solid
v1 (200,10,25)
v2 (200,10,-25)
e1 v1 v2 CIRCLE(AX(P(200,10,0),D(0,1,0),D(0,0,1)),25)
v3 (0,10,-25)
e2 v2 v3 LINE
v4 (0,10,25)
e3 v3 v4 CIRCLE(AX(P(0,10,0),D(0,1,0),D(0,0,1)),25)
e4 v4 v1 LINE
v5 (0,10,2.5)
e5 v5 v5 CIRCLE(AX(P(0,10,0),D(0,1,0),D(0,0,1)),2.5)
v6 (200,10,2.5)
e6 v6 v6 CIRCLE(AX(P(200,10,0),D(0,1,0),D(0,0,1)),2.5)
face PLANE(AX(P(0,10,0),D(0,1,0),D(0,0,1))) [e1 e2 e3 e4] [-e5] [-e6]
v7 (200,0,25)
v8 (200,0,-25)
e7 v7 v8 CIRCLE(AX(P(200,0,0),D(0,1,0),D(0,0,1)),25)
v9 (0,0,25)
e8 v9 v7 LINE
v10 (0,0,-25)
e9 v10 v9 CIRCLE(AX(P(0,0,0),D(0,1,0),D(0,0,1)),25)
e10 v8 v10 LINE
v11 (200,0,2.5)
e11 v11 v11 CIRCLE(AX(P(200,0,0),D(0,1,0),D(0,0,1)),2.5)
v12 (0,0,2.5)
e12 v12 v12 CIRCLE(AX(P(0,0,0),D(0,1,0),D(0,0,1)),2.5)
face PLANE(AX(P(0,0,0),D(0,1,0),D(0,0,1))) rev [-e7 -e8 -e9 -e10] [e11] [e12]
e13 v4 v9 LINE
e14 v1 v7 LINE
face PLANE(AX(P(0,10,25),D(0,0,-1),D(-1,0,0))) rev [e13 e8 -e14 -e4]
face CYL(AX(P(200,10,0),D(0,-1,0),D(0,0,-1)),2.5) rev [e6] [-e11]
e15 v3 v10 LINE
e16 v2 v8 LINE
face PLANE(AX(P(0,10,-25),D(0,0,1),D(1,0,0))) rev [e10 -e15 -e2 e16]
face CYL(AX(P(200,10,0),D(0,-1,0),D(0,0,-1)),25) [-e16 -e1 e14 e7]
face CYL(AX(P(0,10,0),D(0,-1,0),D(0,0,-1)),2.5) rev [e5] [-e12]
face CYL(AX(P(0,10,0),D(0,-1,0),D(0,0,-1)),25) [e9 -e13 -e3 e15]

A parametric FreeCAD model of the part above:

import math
import FreeCAD as App
import Part
import Sketcher
from FreeCAD import Vector

doc = App.newDocument("Part")
body = doc.addObject("PartDesign::Body", "Body")

sketch1 = body.newObject("Sketcher::SketchObject", "Sketch")
sketch1.AttachmentSupport = (doc.getObject("XZ_Plane"), [""])
sketch1.MapMode = "FlatFace"
sketch1.addGeometry(Part.LineSegment(Vector(200, -25, 0), Vector(0, -25, 0)), False)
sketch1.addGeometry(Part.ArcOfCircle(Part.Circle(Vector(0, 0, 0), Vector(0, 0, 1), 25), math.radians(90), math.radians(270)), False)
sketch1.addGeometry(Part.LineSegment(Vector(0, 25, 0), Vector(200, 25, 0)), False)
sketch1.addGeometry(Part.ArcOfCircle(Part.Circle(Vector(200, 0, 0), Vector(0, 0, 1), 25), math.radians(-90), math.radians(90)), False)
sketch1.addGeometry(Part.Circle(Vector(200, 0, 0), Vector(0, 0, 1), 2.5), False)
sketch1.addGeometry(Part.Circle(Vector(0, 0, 0), Vector(0, 0, 1), 2.5), False)
sketch1.addConstraint(Sketcher.Constraint("Tangent", 0, 2, 1, 2))
sketch1.addConstraint(Sketcher.Constraint("Tangent", 1, 1, 2, 1))
sketch1.addConstraint(Sketcher.Constraint("Tangent", 2, 2, 3, 2))
sketch1.addConstraint(Sketcher.Constraint("Tangent", 3, 1, 0, 1))
sketch1.addConstraint(Sketcher.Constraint("Horizontal", 0))
sketch1.addConstraint(Sketcher.Constraint("Horizontal", 2))
sketch1.addConstraint(Sketcher.Constraint("Coincident", 1, 3, -1, 1))
sketch1.addConstraint(Sketcher.Constraint("Coincident", 5, 3, -1, 1))
sketch1.addConstraint(Sketcher.Constraint("Coincident", 4, 3, 3, 3))
sketch1.addConstraint(Sketcher.Constraint("Equal", 4, 5))
sketch1.addConstraint(Sketcher.Constraint("Diameter", 4, 5.0))
sketch1.addConstraint(Sketcher.Constraint("Radius", 1, 25.0))
sketch1.addConstraint(Sketcher.Constraint("DistanceX", 0, 2, 0, 1, 200.0))
pad1 = body.newObject("PartDesign::Pad", "Pad")
pad1.Profile = sketch1
pad1.Length = 10
pad1.Reversed = True

doc.recompute()
